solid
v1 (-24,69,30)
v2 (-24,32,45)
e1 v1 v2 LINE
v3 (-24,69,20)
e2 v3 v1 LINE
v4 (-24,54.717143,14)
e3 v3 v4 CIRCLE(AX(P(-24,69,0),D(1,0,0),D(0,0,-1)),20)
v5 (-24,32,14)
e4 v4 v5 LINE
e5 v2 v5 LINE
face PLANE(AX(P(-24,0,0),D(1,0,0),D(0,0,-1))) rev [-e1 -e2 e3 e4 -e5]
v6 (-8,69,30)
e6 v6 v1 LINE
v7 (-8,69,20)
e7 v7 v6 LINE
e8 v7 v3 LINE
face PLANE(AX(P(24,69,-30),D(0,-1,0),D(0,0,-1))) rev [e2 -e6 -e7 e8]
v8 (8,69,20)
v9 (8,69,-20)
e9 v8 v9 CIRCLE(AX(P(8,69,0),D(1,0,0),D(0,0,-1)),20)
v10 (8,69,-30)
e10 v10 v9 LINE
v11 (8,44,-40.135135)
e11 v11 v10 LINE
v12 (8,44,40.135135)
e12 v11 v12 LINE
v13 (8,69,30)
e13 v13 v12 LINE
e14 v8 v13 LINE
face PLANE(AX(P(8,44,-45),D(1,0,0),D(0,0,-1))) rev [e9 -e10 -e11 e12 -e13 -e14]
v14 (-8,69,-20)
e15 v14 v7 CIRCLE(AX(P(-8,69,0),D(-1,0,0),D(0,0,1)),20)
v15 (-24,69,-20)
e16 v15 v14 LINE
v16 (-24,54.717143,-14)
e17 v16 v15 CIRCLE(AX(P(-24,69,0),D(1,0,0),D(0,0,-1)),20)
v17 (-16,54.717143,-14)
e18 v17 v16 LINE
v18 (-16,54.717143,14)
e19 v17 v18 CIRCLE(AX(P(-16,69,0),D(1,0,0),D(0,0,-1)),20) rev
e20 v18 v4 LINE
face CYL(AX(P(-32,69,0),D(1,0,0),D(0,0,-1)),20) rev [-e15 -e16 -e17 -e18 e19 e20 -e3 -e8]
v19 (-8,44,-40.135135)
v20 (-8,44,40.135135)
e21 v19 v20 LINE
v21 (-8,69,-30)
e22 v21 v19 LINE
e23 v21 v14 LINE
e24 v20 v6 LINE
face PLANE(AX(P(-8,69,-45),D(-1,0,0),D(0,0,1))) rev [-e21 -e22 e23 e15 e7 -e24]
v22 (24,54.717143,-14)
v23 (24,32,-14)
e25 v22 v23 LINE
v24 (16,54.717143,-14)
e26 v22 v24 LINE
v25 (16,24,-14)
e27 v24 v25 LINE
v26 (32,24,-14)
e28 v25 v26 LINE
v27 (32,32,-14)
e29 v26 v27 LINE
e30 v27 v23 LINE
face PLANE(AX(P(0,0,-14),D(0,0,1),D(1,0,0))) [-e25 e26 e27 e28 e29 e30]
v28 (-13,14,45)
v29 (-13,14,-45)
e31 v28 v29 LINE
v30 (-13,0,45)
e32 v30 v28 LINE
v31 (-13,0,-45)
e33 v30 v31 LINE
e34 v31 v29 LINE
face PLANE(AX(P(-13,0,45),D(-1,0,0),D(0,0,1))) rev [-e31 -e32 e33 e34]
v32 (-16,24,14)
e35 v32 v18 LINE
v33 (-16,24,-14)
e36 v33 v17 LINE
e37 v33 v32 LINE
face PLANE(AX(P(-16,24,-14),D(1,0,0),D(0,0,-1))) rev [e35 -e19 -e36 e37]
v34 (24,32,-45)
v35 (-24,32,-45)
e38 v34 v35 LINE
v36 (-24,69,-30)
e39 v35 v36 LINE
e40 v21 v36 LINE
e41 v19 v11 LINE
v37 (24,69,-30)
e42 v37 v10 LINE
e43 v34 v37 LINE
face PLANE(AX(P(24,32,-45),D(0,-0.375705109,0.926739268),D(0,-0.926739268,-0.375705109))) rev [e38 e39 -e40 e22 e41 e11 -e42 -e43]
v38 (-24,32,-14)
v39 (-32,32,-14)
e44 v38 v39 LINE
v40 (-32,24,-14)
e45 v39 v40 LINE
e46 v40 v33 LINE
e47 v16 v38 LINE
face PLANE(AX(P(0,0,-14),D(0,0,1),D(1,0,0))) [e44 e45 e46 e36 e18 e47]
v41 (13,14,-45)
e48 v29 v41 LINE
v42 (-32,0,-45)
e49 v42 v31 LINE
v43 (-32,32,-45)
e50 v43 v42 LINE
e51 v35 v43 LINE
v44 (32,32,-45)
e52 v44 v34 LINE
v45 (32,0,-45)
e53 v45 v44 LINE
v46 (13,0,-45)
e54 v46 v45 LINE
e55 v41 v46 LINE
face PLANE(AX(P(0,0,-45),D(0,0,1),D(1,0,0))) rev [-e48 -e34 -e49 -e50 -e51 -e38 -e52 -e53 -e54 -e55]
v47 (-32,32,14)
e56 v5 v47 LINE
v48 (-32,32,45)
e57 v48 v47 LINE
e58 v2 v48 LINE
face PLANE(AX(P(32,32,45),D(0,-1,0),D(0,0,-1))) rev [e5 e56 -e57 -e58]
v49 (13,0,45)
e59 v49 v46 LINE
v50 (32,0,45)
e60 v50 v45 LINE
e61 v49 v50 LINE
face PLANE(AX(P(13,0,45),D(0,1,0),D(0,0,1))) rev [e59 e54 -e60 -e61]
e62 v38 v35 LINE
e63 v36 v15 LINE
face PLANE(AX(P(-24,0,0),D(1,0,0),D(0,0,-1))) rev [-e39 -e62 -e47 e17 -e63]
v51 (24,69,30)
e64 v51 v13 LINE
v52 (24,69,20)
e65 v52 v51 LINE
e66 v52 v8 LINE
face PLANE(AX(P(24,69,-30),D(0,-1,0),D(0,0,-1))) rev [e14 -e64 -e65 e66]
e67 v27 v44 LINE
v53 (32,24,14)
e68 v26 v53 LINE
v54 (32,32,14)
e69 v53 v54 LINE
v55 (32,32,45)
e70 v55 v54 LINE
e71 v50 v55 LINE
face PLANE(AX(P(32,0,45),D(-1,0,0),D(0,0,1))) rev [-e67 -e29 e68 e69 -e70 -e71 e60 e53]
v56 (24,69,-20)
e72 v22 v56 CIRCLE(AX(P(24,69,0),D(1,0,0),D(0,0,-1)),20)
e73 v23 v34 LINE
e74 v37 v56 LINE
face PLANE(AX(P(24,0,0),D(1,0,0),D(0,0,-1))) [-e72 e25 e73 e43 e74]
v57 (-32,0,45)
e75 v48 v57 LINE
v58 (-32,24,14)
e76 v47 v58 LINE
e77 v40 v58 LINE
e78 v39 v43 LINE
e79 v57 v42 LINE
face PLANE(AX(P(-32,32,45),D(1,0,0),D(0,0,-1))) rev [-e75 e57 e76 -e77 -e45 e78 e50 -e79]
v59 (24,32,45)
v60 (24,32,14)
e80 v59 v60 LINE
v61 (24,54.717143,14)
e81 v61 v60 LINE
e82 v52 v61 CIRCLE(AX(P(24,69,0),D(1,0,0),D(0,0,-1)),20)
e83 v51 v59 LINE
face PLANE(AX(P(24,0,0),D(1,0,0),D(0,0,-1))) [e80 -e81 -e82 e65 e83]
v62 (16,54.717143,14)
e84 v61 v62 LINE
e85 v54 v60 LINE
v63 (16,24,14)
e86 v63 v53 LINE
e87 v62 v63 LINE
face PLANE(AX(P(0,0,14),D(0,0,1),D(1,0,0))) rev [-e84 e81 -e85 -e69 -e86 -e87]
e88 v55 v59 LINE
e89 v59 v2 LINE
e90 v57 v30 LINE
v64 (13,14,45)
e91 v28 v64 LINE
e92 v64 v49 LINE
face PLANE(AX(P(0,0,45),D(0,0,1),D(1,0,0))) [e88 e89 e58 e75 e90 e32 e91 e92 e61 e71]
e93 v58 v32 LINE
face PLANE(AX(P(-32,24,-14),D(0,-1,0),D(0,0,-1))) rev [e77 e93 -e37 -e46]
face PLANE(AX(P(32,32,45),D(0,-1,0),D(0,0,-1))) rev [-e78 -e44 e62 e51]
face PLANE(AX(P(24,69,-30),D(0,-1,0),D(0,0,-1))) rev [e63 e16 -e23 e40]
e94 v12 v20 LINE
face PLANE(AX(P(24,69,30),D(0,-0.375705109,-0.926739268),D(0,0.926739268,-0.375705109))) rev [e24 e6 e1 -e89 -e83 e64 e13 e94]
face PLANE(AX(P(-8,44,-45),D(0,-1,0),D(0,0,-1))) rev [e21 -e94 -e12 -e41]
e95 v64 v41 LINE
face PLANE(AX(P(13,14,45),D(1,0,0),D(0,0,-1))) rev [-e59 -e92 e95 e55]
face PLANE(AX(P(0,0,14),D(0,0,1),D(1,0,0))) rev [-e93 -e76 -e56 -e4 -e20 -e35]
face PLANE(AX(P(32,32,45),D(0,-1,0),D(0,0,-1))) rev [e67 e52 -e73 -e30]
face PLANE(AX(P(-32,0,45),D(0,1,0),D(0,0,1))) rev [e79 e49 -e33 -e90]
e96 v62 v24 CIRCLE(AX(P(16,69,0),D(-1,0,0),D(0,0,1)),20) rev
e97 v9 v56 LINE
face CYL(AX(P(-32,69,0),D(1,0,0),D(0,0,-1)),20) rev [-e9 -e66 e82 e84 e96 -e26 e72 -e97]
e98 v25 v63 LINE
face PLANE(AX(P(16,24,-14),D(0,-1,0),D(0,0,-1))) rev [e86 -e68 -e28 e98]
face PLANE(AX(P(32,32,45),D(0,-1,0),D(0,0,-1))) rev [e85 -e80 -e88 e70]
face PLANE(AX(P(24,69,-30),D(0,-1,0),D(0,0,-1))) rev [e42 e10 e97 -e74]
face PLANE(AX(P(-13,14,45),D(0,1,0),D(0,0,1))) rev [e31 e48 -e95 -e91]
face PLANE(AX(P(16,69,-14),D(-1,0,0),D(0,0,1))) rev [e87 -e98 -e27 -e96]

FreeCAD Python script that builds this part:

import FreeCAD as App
import Part
import Sketcher

V = App.Vector
Q = App.Units.Quantity

doc = App.newDocument("Part")
body = doc.addObject("PartDesign::Body", "Body")

sketch1 = body.newObject("Sketcher::SketchObject", "Sketch")
sketch1.AttachmentSupport = (doc.getObject("XY_Plane"), [""])
sketch1.MapMode = "FlatFace"
sketch1.addGeometry(Part.LineSegment(V(-32, 0, 0), V(-13, 0, 0)), False)
sketch1.addGeometry(Part.LineSegment(V(-13, 0, 0), V(-13, 14, 0)), False)
sketch1.addGeometry(Part.LineSegment(V(-13, 14, 0), V(13, 14, 0)), False)
sketch1.addGeometry(Part.LineSegment(V(13, 14, 0), V(13, 0, 0)), False)
sketch1.addGeometry(Part.LineSegment(V(13, 0, 0), V(32, 0, 0)), False)
sketch1.addGeometry(Part.LineSegment(V(32, 0, 0), V(32, 32, 0)), False)
sketch1.addGeometry(Part.LineSegment(V(32, 32, 0), V(-32, 32, 0)), False)
sketch1.addGeometry(Part.LineSegment(V(-32, 32, 0), V(-32, 0, 0)), False)
sketch1.addConstraint(Sketcher.Constraint("Coincident", 0, 2, 1, 1))
sketch1.addConstraint(Sketcher.Constraint("Coincident", 1, 2, 2, 1))
sketch1.addConstraint(Sketcher.Constraint("Coincident", 2, 2, 3, 1))
sketch1.addConstraint(Sketcher.Constraint("Coincident", 3, 2, 4, 1))
sketch1.addConstraint(Sketcher.Constraint("Coincident", 4, 2, 5, 1))
sketch1.addConstraint(Sketcher.Constraint("Coincident", 5, 2, 6, 1))
sketch1.addConstraint(Sketcher.Constraint("Coincident", 6, 2, 7, 1))
sketch1.addConstraint(Sketcher.Constraint("Coincident", 7, 2, 0, 1))
sketch1.addConstraint(Sketcher.Constraint("Horizontal", 0))
sketch1.addConstraint(Sketcher.Constraint("Vertical", 1))
sketch1.addConstraint(Sketcher.Constraint("Horizontal", 2))
sketch1.addConstraint(Sketcher.Constraint("Vertical", 3))
sketch1.addConstraint(Sketcher.Constraint("Horizontal", 4))
sketch1.addConstraint(Sketcher.Constraint("Vertical", 5))
sketch1.addConstraint(Sketcher.Constraint("Horizontal", 6))
sketch1.addConstraint(Sketcher.Constraint("Vertical", 7))
sketch1.addConstraint(Sketcher.Constraint("Symmetric", 0, 2, 3, 2, -1, 1))
sketch1.addConstraint(Sketcher.Constraint("Symmetric", 4, 2, 7, 2, -2))
sketch1.addConstraint(Sketcher.Constraint("DistanceX", 0, 1, 0, 2, Q("19 mm")))
sketch1.addConstraint(Sketcher.Constraint("DistanceX", 2, 1, 2, 2, Q("26 mm")))
sketch1.addConstraint(Sketcher.Constraint("DistanceY", 1, 1, 1, 2, Q("14 mm")))
sketch1.addConstraint(Sketcher.Constraint("DistanceY", 5, 1, 5, 2, Q("32 mm")))
pad1 = body.newObject("PartDesign::Pad", "Pad")
pad1.Profile = sketch1
pad1.Length = 90
pad1.Midplane = True

sketch2 = body.newObject("Sketcher::SketchObject", "Sketch001")
sketch2.AttachmentSupport = (doc.getObject("YZ_Plane"), [""])
sketch2.MapMode = "FlatFace"
sketch2.addGeometry(Part.LineSegment(V(32, 45, 0), V(32, -45, 0)), False)
sketch2.addGeometry(Part.LineSegment(V(32, -45, 0), V(69, -30, 0)), False)
sketch2.addGeometry(Part.LineSegment(V(69, -30, 0), V(69, 30, 0)), False)
sketch2.addGeometry(Part.LineSegment(V(69, 30, 0), V(32, 45, 0)), False)
sketch2.addConstraint(Sketcher.Constraint("Coincident", 0, 2, 1, 1))
sketch2.addConstraint(Sketcher.Constraint("Coincident", 1, 2, 2, 1))
sketch2.addConstraint(Sketcher.Constraint("Coincident", 2, 2, 3, 1))
sketch2.addConstraint(Sketcher.Constraint("Coincident", 3, 2, 0, 1))
sketch2.addConstraint(Sketcher.Constraint("Vertical", 0))
sketch2.addConstraint(Sketcher.Constraint("Vertical", 2))
sketch2.addConstraint(Sketcher.Constraint("Equal", 1, 3))
sketch2.addConstraint(Sketcher.Constraint("DistanceY", 0, 2, 0, 1, Q("90 mm")))
sketch2.addConstraint(Sketcher.Constraint("DistanceY", 2, 1, 2, 2, Q("60 mm")))
sketch2.addConstraint(Sketcher.Constraint("DistanceX", -1, 1, 0, 2, Q("32 mm")))
sketch2.addConstraint(Sketcher.Constraint("DistanceY", 0, 2, -1, 1, Q("45 mm")))
sketch2.addConstraint(Sketcher.Constraint("DistanceX", -1, 1, 1, 2, Q("69 mm")))
pad2 = body.newObject("PartDesign::Pad", "Pad001")
pad2.Profile = sketch2
pad2.Length = 48
pad2.Midplane = True

sketch3 = body.newObject("Sketcher::SketchObject", "Sketch002")
sketch3.AttachmentSupport = (doc.getObject("XY_Plane"), [""])
sketch3.MapMode = "FlatFace"
sketch3.addGeometry(Part.LineSegment(V(-8, 69, 0), V(-8, 44, 0)), False)
sketch3.addGeometry(Part.LineSegment(V(-8, 44, 0), V(8, 44, 0)), False)
sketch3.addGeometry(Part.LineSegment(V(8, 44, 0), V(8, 69, 0)), False)
sketch3.addGeometry(Part.LineSegment(V(8, 69, 0), V(-8, 69, 0)), False)
sketch3.addConstraint(Sketcher.Constraint("Coincident", 0, 2, 1, 1))
sketch3.addConstraint(Sketcher.Constraint("Coincident", 1, 2, 2, 1))
sketch3.addConstraint(Sketcher.Constraint("Coincident", 2, 2, 3, 1))
sketch3.addConstraint(Sketcher.Constraint("Coincident", 3, 2, 0, 1))
sketch3.addConstraint(Sketcher.Constraint("Vertical", 0))
sketch3.addConstraint(Sketcher.Constraint("Horizontal", 1))
sketch3.addConstraint(Sketcher.Constraint("Vertical", 2))
sketch3.addConstraint(Sketcher.Constraint("Horizontal", 3))
sketch3.addConstraint(Sketcher.Constraint("DistanceX", 1, 1, 1, 2, Q("16 mm")))
sketch3.addConstraint(Sketcher.Constraint("DistanceY", 0, 2, 0, 1, Q("25 mm")))
sketch3.addConstraint(Sketcher.Constraint("DistanceX", 0, 2, -1, 1, Q("8 mm")))
sketch3.addConstraint(Sketcher.Constraint("DistanceY", -1, 1, 0, 2, Q("44 mm")))
pocket1 = body.newObject("PartDesign::Pocket", "Pocket")
pocket1.Profile = sketch3
pocket1.Type = "ThroughAll"
pocket1.Midplane = True

sketch4 = body.newObject("Sketcher::SketchObject", "Sketch003")
sketch4.AttachmentSupport = (doc.getObject("YZ_Plane"), [""])
sketch4.MapMode = "FlatFace"
sketch4.AttachmentOffset = App.Placement(V(0, 0, 24), App.Rotation())
sketch4.addGeometry(Part.Circle(V(69, 0, 0), V(0, 0, 1), 20), False)
sketch4.addConstraint(Sketcher.Constraint("PointOnObject", 0, 3, -1))
sketch4.addConstraint(Sketcher.Constraint("Diameter", 0, Q("40 mm")))
sketch4.addConstraint(Sketcher.Constraint("DistanceX", -1, 1, 0, 3, Q("69 mm")))
pocket2 = body.newObject("PartDesign::Pocket", "Pocket001")
pocket2.Profile = sketch4
pocket2.Type = "ThroughAll"

sketch5 = body.newObject("Sketcher::SketchObject", "Sketch004")
sketch5.AttachmentSupport = (doc.getObject("XY_Plane"), [""])
sketch5.MapMode = "FlatFace"
sketch5.addGeometry(Part.LineSegment(V(-32, 69, 0), V(-32, 24, 0)), False)
sketch5.addGeometry(Part.LineSegment(V(-32, 24, 0), V(-16, 24, 0)), False)
sketch5.addGeometry(Part.LineSegment(V(-16, 24, 0), V(-16, 69, 0)), False)
sketch5.addGeometry(Part.LineSegment(V(-16, 69, 0), V(-32, 69, 0)), False)
sketch5.addGeometry(Part.LineSegment(V(16, 69, 0), V(16, 24, 0)), False)
sketch5.addGeometry(Part.LineSegment(V(16, 24, 0), V(32, 24, 0)), False)
sketch5.addGeometry(Part.LineSegment(V(32, 24, 0), V(32, 69, 0)), False)
sketch5.addGeometry(Part.LineSegment(V(32, 69, 0), V(16, 69, 0)), False)
sketch5.addConstraint(Sketcher.Constraint("Coincident", 0, 2, 1, 1))
sketch5.addConstraint(Sketcher.Constraint("Coincident", 1, 2, 2, 1))
sketch5.addConstraint(Sketcher.Constraint("Coincident", 2, 2, 3, 1))
sketch5.addConstraint(Sketcher.Constraint("Coincident", 3, 2, 0, 1))
sketch5.addConstraint(Sketcher.Constraint("Coincident", 4, 2, 5, 1))
sketch5.addConstraint(Sketcher.Constraint("Coincident", 5, 2, 6, 1))
sketch5.addConstraint(Sketcher.Constraint("Coincident", 6, 2, 7, 1))
sketch5.addConstraint(Sketcher.Constraint("Coincident", 7, 2, 4, 1))
sketch5.addConstraint(Sketcher.Constraint("Vertical", 0))
sketch5.addConstraint(Sketcher.Constraint("Horizontal", 1))
sketch5.addConstraint(Sketcher.Constraint("Vertical", 2))
sketch5.addConstraint(Sketcher.Constraint("Horizontal", 3))
sketch5.addConstraint(Sketcher.Constraint("Vertical", 4))
sketch5.addConstraint(Sketcher.Constraint("Horizontal", 5))
sketch5.addConstraint(Sketcher.Constraint("Vertical", 6))
sketch5.addConstraint(Sketcher.Constraint("Horizontal", 7))
sketch5.addConstraint(Sketcher.Constraint("Symmetric", 1, 2, 4, 2, -2))
sketch5.addConstraint(Sketcher.Constraint("Symmetric", 3, 2, 6, 2, -2))
sketch5.addConstraint(Sketcher.Constraint("DistanceX", 1, 1, 1, 2, Q("16 mm")))
sketch5.addConstraint(Sketcher.Constraint("DistanceY", 0, 2, 0, 1, Q("45 mm")))
sketch5.addConstraint(Sketcher.Constraint("DistanceX", 0, 2, -1, 1, Q("32 mm")))
sketch5.addConstraint(Sketcher.Constraint("DistanceY", -1, 1, 0, 2, Q("24 mm")))
pocket3 = body.newObject("PartDesign::Pocket", "Pocket002")
pocket3.Profile = sketch5
pocket3.Length = 28
pocket3.Midplane = True

doc.recompute()
